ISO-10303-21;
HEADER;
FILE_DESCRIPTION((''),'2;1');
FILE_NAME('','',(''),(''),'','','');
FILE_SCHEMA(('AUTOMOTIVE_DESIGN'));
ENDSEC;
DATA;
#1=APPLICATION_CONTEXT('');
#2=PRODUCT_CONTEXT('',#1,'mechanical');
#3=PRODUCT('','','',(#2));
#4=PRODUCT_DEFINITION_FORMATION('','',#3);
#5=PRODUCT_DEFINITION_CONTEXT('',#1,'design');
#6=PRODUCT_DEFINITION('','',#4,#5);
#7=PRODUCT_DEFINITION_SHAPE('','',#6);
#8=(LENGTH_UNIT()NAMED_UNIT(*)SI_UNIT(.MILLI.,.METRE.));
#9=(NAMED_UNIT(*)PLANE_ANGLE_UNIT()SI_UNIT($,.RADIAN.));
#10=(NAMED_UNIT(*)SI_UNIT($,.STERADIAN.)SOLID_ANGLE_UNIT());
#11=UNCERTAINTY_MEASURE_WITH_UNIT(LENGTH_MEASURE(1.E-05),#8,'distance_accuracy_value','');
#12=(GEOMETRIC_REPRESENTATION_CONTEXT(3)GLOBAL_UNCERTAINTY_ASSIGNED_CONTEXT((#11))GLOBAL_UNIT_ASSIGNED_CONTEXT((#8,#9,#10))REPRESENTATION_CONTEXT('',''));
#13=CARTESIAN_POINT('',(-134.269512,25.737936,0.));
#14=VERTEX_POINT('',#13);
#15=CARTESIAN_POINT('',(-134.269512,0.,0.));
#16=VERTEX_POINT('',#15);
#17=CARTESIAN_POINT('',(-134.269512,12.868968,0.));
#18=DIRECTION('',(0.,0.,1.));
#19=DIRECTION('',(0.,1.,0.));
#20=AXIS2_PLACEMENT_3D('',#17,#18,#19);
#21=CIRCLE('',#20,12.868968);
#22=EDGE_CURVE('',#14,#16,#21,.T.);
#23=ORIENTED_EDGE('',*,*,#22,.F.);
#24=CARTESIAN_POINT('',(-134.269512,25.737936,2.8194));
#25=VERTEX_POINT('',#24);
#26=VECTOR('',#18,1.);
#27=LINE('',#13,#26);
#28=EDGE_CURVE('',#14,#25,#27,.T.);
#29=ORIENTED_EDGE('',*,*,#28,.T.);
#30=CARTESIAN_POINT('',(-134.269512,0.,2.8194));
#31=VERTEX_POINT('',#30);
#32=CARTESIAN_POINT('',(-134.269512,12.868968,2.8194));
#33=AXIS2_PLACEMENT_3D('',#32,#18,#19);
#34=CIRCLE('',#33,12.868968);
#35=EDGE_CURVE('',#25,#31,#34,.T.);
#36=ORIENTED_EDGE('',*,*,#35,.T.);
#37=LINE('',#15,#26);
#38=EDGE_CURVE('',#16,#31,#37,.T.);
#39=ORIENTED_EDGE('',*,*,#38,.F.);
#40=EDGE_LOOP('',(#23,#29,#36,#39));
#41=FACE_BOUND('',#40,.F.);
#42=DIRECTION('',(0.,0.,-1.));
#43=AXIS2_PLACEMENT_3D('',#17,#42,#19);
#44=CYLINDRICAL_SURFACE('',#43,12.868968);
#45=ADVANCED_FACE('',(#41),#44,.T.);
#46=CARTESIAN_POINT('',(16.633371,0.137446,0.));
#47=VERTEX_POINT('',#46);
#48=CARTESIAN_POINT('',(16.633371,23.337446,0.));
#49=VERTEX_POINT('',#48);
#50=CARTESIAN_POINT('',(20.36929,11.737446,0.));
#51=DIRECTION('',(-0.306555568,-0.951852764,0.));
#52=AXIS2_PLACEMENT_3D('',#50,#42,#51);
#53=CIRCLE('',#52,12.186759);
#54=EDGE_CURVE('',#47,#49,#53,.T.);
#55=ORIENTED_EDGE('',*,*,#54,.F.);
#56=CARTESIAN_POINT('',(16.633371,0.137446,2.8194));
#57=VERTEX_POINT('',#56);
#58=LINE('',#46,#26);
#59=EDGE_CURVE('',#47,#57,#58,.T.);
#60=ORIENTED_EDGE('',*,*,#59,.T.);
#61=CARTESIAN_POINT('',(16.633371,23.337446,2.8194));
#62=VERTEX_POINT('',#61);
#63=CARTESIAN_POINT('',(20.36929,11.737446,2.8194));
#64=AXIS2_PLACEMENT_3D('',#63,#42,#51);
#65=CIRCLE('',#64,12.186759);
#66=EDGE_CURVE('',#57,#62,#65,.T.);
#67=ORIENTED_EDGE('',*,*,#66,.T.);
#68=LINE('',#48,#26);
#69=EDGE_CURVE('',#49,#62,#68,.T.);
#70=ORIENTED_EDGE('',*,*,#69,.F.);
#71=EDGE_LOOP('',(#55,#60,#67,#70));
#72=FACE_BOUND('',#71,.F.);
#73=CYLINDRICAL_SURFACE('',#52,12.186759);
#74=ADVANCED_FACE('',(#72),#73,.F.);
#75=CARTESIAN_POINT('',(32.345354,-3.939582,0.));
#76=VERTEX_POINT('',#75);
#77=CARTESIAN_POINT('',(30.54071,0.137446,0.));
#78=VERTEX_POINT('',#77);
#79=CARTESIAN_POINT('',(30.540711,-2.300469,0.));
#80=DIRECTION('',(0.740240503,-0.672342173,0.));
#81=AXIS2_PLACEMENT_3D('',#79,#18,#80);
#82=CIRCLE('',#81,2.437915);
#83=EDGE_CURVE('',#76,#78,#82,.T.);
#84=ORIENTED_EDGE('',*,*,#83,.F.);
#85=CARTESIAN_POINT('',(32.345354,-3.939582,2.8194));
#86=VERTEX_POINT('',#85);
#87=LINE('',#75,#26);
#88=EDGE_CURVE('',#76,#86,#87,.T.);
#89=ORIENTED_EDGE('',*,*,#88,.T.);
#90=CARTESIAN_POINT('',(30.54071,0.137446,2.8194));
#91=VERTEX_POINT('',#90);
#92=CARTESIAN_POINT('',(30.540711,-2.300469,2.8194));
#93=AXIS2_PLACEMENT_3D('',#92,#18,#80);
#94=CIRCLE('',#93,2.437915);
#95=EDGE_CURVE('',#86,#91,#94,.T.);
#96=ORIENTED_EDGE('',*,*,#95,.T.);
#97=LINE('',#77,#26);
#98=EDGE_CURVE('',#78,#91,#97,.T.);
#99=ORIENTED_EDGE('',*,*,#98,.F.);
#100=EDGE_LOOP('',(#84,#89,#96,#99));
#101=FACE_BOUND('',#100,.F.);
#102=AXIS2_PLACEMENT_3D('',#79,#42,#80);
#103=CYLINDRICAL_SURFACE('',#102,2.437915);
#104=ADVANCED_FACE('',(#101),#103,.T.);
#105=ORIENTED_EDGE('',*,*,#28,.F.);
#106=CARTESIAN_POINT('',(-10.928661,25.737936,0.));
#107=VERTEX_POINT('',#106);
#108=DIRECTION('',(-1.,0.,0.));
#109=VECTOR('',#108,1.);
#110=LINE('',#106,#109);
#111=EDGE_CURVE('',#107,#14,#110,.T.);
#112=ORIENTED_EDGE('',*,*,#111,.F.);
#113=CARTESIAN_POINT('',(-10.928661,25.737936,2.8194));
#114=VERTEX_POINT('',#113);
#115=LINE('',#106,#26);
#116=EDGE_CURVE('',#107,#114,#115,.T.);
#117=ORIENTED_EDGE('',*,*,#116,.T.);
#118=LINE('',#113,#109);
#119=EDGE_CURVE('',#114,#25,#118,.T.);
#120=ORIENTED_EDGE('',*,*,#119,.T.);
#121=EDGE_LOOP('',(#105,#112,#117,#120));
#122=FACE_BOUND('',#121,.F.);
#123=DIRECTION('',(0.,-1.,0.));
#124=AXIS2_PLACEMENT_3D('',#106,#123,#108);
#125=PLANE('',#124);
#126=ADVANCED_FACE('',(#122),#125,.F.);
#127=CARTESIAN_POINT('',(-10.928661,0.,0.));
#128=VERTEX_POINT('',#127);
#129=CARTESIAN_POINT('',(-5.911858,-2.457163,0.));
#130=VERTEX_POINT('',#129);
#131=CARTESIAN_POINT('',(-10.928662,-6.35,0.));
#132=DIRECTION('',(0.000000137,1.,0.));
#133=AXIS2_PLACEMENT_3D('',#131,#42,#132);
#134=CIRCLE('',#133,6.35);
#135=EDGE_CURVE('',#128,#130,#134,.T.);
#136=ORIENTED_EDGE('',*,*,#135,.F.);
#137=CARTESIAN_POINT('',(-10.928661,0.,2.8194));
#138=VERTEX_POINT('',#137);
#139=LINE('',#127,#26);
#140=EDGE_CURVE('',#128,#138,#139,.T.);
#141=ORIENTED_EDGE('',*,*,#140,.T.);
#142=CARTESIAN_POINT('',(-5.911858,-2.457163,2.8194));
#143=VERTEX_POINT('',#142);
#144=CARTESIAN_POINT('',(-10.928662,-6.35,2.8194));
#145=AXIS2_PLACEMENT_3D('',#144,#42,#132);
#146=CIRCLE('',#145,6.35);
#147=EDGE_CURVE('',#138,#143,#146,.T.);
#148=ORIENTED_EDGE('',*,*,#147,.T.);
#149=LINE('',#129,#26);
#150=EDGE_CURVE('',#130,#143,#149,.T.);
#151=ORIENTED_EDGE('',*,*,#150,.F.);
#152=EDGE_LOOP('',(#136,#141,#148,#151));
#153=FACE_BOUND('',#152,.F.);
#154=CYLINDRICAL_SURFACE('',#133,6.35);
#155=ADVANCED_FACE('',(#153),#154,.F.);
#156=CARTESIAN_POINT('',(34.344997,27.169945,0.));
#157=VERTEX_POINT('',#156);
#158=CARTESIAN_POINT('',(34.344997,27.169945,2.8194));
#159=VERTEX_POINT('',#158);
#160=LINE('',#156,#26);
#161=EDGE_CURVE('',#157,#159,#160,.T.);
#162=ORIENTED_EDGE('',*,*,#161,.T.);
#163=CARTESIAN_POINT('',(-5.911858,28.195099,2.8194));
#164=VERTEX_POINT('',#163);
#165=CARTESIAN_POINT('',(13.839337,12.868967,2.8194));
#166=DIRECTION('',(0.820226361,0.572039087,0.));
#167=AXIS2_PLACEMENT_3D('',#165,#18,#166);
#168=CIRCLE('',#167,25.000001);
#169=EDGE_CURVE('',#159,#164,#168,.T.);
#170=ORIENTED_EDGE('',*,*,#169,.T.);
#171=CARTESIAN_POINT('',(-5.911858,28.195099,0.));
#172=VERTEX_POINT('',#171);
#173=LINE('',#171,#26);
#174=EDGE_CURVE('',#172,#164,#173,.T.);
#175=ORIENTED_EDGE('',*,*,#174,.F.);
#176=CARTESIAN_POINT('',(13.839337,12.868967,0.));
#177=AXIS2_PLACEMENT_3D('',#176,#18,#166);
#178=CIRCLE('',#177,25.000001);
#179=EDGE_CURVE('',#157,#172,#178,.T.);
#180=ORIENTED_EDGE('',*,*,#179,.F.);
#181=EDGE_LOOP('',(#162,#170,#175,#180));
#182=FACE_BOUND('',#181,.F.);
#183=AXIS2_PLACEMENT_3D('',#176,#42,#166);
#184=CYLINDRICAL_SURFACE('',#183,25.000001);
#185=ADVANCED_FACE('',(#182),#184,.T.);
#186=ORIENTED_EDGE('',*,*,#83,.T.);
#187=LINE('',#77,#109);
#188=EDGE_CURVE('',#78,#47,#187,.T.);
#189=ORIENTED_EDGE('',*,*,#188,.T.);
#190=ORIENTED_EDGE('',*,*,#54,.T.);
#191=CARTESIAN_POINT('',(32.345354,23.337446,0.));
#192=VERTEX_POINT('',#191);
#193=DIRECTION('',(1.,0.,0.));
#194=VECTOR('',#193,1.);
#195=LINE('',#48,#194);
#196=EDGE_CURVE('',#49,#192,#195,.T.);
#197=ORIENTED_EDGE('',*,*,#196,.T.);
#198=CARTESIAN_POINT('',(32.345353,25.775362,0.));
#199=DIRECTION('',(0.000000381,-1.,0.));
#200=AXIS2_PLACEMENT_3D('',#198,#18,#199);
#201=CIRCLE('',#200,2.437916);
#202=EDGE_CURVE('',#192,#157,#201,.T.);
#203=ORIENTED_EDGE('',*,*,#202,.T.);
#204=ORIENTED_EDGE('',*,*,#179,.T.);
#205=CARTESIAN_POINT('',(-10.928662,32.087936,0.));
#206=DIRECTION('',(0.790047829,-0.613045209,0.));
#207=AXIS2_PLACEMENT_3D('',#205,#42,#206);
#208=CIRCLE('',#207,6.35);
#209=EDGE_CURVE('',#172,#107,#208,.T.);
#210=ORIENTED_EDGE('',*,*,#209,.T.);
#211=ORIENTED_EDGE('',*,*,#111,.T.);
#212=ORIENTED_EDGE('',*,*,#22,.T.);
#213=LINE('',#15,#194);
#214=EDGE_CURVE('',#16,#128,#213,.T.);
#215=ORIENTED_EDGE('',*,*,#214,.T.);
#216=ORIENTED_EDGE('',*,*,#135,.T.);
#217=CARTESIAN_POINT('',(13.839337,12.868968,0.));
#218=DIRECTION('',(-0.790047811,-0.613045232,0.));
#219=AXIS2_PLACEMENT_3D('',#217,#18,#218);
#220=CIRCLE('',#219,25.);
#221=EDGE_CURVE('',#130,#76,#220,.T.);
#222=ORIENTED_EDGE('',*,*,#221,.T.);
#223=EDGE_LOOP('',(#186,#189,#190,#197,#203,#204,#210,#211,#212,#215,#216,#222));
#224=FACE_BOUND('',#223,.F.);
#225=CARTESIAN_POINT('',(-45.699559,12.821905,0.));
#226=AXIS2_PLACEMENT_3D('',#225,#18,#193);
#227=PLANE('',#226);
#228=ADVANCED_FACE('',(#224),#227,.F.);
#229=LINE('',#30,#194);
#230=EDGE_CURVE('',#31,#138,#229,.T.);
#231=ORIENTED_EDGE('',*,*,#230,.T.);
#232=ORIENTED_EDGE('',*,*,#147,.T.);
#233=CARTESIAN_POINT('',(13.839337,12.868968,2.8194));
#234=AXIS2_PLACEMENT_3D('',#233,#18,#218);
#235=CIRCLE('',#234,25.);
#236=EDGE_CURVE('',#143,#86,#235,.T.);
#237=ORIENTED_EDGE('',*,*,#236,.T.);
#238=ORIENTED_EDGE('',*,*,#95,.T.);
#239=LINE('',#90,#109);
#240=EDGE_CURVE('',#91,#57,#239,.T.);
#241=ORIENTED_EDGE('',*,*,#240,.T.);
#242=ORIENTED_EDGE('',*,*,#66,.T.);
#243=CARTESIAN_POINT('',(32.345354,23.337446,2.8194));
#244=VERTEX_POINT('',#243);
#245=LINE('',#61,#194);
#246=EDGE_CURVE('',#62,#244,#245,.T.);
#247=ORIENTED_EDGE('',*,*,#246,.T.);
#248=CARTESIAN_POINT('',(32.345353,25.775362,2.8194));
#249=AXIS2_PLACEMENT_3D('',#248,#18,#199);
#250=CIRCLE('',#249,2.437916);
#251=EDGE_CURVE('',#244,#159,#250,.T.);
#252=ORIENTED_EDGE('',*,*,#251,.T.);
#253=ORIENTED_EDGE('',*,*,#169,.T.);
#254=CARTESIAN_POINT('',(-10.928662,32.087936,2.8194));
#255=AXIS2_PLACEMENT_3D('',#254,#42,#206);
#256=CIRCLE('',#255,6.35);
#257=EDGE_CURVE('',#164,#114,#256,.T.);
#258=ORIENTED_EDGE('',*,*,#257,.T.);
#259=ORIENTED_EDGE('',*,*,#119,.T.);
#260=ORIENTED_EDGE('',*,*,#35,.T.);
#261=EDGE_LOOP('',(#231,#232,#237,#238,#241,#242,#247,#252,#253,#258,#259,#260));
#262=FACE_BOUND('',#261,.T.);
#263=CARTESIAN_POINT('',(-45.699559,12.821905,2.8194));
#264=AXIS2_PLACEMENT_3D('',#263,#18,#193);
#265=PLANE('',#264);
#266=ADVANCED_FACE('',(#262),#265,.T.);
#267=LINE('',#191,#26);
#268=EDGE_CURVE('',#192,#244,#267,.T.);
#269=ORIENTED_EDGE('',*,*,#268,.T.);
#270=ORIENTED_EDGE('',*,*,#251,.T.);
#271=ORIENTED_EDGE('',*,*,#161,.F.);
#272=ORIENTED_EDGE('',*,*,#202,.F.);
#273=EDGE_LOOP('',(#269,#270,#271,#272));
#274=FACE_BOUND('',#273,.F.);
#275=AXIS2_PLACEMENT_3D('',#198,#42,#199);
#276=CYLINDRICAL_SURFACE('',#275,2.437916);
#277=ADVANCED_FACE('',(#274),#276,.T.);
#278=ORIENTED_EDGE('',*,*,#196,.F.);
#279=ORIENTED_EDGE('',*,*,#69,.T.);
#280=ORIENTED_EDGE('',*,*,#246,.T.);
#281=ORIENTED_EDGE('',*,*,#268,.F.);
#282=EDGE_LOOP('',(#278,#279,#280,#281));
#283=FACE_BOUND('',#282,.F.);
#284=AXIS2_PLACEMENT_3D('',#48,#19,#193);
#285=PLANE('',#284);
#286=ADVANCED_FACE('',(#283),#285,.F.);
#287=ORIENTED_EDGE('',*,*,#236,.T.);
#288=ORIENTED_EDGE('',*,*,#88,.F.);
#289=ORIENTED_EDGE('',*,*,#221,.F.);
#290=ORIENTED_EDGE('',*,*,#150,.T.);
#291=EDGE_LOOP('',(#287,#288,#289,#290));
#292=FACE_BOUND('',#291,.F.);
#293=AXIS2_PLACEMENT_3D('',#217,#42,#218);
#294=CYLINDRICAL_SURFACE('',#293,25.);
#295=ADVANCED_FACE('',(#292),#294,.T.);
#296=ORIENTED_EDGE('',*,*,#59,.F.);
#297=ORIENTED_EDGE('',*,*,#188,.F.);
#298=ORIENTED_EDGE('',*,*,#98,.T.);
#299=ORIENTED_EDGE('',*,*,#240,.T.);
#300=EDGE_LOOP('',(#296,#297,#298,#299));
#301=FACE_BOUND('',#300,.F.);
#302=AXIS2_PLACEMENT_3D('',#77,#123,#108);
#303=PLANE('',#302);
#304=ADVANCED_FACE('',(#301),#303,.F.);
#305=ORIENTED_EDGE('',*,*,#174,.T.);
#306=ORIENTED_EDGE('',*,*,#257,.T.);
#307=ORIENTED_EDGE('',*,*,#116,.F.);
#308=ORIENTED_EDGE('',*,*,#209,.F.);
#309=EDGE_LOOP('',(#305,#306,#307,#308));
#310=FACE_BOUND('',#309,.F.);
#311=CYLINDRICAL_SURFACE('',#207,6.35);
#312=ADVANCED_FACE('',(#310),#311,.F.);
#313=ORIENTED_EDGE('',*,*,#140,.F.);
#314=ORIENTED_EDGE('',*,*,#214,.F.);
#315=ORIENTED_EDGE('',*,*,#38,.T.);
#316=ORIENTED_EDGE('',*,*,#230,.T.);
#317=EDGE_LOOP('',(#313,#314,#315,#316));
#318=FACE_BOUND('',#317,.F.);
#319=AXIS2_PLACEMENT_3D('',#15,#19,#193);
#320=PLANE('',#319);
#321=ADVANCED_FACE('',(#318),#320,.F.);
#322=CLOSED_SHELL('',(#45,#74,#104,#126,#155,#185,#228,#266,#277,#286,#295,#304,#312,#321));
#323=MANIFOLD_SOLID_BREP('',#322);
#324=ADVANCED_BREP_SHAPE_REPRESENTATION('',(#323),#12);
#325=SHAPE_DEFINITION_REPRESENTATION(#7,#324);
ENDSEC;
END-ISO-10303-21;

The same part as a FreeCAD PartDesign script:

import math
import FreeCAD as App
import Part
import Sketcher

doc = App.newDocument("Part")
body = doc.addObject("PartDesign::Body", "Body")

sketch1 = doc.addObject("Sketcher::SketchObject", "Sketch")
body.addObject(sketch1)
sketch1.AttachmentSupport = (doc.XY_Plane, [""])
sketch1.MapMode = "FlatFace"
sketch1.addGeometry([
    Part.ArcOfCircle(Part.Circle(App.Vector(-10.9, 32.1, 0), App.Vector(0, 0, 1), 6.4), math.radians(-90), math.radians(-38)),
    Part.LineSegment(App.Vector(-10.9, 25.7, 0), App.Vector(-134.3, 25.7, 0)),
    Part.ArcOfCircle(Part.Circle(App.Vector(-134.3, 12.9, 0), App.Vector(0, 0, 1), 12.9), math.radians(90), math.radians(270)),
    Part.LineSegment(App.Vector(-134.3, 0, 0), App.Vector(-10.9, 0, 0)),
    Part.ArcOfCircle(Part.Circle(App.Vector(-10.9, -6.4, 0), App.Vector(0, 0, 1), 6.4), math.radians(38), math.radians(90)),
    Part.ArcOfCircle(Part.Circle(App.Vector(13.8, 12.9, 0), App.Vector(0, 0, 1), 25), math.radians(-142), math.radians(-42)),
    Part.ArcOfCircle(Part.Circle(App.Vector(30.5, -2.3, 0), App.Vector(0, 0, 1), 2.4), math.radians(-42), math.radians(90)),
    Part.LineSegment(App.Vector(30.5, 0.1, 0), App.Vector(16.6, 0.1, 0)),
    Part.ArcOfCircle(Part.Circle(App.Vector(20.4, 11.7, 0), App.Vector(0, 0, 1), 12.2), math.radians(108), math.radians(252)),
    Part.LineSegment(App.Vector(16.6, 23.3, 0), App.Vector(32.3, 23.3, 0)),
    Part.ArcOfCircle(Part.Circle(App.Vector(32.3, 25.8, 0), App.Vector(0, 0, 1), 2.4), math.radians(-90), math.radians(35)),
    Part.ArcOfCircle(Part.Circle(App.Vector(13.8, 12.9, 0), App.Vector(0, 0, 1), 25), math.radians(35), math.radians(142)),
], False)
sketch1.addConstraint([
    Sketcher.Constraint("Tangent", 0, 1, 1, 1),
    Sketcher.Constraint("Tangent", 1, 2, 2, 1),
    Sketcher.Constraint("Tangent", 2, 2, 3, 1),
    Sketcher.Constraint("Tangent", 3, 2, 4, 2),
    Sketcher.Constraint("Tangent", 4, 1, 5, 1),
    Sketcher.Constraint("Tangent", 5, 2, 6, 1),
    Sketcher.Constraint("Tangent", 6, 2, 7, 1),
    Sketcher.Constraint("Coincident", 7, 2, 8, 2),
    Sketcher.Constraint("Coincident", 8, 1, 9, 1),
    Sketcher.Constraint("Tangent", 9, 2, 10, 1),
    Sketcher.Constraint("Tangent", 10, 2, 11, 1),
    Sketcher.Constraint("Tangent", 11, 2, 0, 2),
    Sketcher.Constraint("Horizontal", 1),
    Sketcher.Constraint("Horizontal", 3),
    Sketcher.Constraint("Horizontal", 7),
    Sketcher.Constraint("Horizontal", 9),
    Sketcher.Constraint("Coincident", 11, 3, 5, 3),
    Sketcher.Constraint("Equal", 0, 4),
    Sketcher.Constraint("Equal", 6, 10),
    Sketcher.Constraint("Equal", 5, 11),
    Sketcher.Constraint("PointOnObject", 2, 2, -1),
    Sketcher.Constraint("Horizontal", 2, 3, 5, 3),
    Sketcher.Constraint("Vertical", 10, 3, 5, 2),
    Sketcher.Constraint("Vertical", 7, 2, 8, 1),
    Sketcher.Constraint("Radius", 5, 25.0),
    Sketcher.Constraint("Radius", 0, 6.35),
    Sketcher.Constraint("DistanceY", 6, 2, 8, 3, 11.6),
    Sketcher.Constraint("Radius", 2, 12.868968),
    Sketcher.Constraint("Radius", 8, 12.186759),
    Sketcher.Constraint("Radius", 6, 2.437915),
    Sketcher.Constraint("DistanceX", 1, 2, 1, 1, 123.340851),
    Sketcher.Constraint("DistanceX", 7, 2, 7, 1, 13.907339),
    Sketcher.Constraint("DistanceX", 0, 3, -1, 1, 10.928662),
])
pad1 = doc.addObject("PartDesign::Pad", "Pad")
body.addObject(pad1)
pad1.Profile = sketch1
pad1.Length = 2.8194

doc.recompute()
